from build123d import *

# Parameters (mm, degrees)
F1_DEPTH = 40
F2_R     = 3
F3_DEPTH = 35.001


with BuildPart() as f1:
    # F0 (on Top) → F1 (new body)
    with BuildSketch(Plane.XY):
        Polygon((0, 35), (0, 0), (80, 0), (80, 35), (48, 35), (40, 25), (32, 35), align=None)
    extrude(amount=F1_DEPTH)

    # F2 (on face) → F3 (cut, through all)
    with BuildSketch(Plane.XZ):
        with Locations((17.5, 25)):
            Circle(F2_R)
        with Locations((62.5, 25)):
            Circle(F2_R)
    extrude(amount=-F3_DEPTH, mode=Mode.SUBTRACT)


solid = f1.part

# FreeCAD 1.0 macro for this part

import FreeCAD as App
import Part
import Sketcher
Q = App.Units.Quantity

doc = App.newDocument("Part")
body = doc.addObject("PartDesign::Body", "Body")

# Sketch on XY plane
sketch1 = doc.addObject("Sketcher::SketchObject", "Sketch")
body.addObject(sketch1)
sketch1.AttachmentSupport = (doc.XY_Plane, [""])
sketch1.MapMode = "FlatFace"
sketch1.addGeometry([
    Part.LineSegment(App.Vector(0, 35, 0), App.Vector(0, 0, 0)),  # 0
    Part.LineSegment(App.Vector(0, 0, 0), App.Vector(80, 0, 0)),  # 1
    Part.LineSegment(App.Vector(80, 0, 0), App.Vector(80, 35, 0)),  # 2
    Part.LineSegment(App.Vector(80, 35, 0), App.Vector(48, 35, 0)),  # 3
    Part.LineSegment(App.Vector(48, 35, 0), App.Vector(40, 25, 0)),  # 4
    Part.LineSegment(App.Vector(40, 25, 0), App.Vector(32, 35, 0)),  # 5
    Part.LineSegment(App.Vector(32, 35, 0), App.Vector(0, 35, 0)),  # 6
], False)
sketch1.addConstraint([
    Sketcher.Constraint("Coincident", 0, 2, 1, 1),
    Sketcher.Constraint("Coincident", 1, 2, 2, 1),
    Sketcher.Constraint("Coincident", 2, 2, 3, 1),
    Sketcher.Constraint("Coincident", 3, 2, 4, 1),
    Sketcher.Constraint("Coincident", 4, 2, 5, 1),
    Sketcher.Constraint("Coincident", 5, 2, 6, 1),
    Sketcher.Constraint("Coincident", 6, 2, 0, 1),
    Sketcher.Constraint("Vertical", 0),
    Sketcher.Constraint("Horizontal", 1),
    Sketcher.Constraint("Vertical", 2),
    Sketcher.Constraint("Horizontal", 3),
    Sketcher.Constraint("Horizontal", 6),
    Sketcher.Constraint("Coincident", 0, 2, -1, 1),
    Sketcher.Constraint("Horizontal", 3, 2, 5, 2),
    Sketcher.Constraint("Equal", 3, 6),
    Sketcher.Constraint("Equal", 4, 5),
    Sketcher.Constraint("DistanceX", 1, 1, 1, 2, Q("80 mm")),
    Sketcher.Constraint("DistanceX", 3, 2, 3, 1, Q("32 mm")),
    Sketcher.Constraint("DistanceY", 0, 2, 0, 1, Q("35 mm")),
    Sketcher.Constraint("DistanceY", -1, 1, 4, 2, Q("25 mm")),
])
pad1 = doc.addObject("PartDesign::Pad", "Pad")
body.addObject(pad1)
pad1.Profile = sketch1
pad1.Length = 40

# Sketch on XZ plane
sketch2 = doc.addObject("Sketcher::SketchObject", "Sketch001")
body.addObject(sketch2)
sketch2.AttachmentSupport = (doc.XZ_Plane, [""])
sketch2.MapMode = "FlatFace"
sketch2.addGeometry([
    Part.Circle(App.Vector(17.5, 25, 0), App.Vector(0, 0, 1), 3),
    Part.Circle(App.Vector(62.5, 25, 0), App.Vector(0, 0, 1), 3),
], False)
sketch2.addConstraint([
    Sketcher.Constraint("Equal", 0, 1),
    Sketcher.Constraint("Horizontal", 0, 3, 1, 3),
    Sketcher.Constraint("Diameter", 0, Q("6 mm")),
    Sketcher.Constraint("DistanceY", -1, 1, 0, 3, Q("25 mm")),
    Sketcher.Constraint("DistanceX", 0, 3, 1, 3, Q("45 mm")),
    Sketcher.Constraint("DistanceX", -1, 1, 0, 3, Q("17.5 mm")),
])
pocket1 = doc.addObject("PartDesign::Pocket", "Pocket")
body.addObject(pocket1)
pocket1.Profile = sketch2
pocket1.Type = "ThroughAll"

doc.recompute()
